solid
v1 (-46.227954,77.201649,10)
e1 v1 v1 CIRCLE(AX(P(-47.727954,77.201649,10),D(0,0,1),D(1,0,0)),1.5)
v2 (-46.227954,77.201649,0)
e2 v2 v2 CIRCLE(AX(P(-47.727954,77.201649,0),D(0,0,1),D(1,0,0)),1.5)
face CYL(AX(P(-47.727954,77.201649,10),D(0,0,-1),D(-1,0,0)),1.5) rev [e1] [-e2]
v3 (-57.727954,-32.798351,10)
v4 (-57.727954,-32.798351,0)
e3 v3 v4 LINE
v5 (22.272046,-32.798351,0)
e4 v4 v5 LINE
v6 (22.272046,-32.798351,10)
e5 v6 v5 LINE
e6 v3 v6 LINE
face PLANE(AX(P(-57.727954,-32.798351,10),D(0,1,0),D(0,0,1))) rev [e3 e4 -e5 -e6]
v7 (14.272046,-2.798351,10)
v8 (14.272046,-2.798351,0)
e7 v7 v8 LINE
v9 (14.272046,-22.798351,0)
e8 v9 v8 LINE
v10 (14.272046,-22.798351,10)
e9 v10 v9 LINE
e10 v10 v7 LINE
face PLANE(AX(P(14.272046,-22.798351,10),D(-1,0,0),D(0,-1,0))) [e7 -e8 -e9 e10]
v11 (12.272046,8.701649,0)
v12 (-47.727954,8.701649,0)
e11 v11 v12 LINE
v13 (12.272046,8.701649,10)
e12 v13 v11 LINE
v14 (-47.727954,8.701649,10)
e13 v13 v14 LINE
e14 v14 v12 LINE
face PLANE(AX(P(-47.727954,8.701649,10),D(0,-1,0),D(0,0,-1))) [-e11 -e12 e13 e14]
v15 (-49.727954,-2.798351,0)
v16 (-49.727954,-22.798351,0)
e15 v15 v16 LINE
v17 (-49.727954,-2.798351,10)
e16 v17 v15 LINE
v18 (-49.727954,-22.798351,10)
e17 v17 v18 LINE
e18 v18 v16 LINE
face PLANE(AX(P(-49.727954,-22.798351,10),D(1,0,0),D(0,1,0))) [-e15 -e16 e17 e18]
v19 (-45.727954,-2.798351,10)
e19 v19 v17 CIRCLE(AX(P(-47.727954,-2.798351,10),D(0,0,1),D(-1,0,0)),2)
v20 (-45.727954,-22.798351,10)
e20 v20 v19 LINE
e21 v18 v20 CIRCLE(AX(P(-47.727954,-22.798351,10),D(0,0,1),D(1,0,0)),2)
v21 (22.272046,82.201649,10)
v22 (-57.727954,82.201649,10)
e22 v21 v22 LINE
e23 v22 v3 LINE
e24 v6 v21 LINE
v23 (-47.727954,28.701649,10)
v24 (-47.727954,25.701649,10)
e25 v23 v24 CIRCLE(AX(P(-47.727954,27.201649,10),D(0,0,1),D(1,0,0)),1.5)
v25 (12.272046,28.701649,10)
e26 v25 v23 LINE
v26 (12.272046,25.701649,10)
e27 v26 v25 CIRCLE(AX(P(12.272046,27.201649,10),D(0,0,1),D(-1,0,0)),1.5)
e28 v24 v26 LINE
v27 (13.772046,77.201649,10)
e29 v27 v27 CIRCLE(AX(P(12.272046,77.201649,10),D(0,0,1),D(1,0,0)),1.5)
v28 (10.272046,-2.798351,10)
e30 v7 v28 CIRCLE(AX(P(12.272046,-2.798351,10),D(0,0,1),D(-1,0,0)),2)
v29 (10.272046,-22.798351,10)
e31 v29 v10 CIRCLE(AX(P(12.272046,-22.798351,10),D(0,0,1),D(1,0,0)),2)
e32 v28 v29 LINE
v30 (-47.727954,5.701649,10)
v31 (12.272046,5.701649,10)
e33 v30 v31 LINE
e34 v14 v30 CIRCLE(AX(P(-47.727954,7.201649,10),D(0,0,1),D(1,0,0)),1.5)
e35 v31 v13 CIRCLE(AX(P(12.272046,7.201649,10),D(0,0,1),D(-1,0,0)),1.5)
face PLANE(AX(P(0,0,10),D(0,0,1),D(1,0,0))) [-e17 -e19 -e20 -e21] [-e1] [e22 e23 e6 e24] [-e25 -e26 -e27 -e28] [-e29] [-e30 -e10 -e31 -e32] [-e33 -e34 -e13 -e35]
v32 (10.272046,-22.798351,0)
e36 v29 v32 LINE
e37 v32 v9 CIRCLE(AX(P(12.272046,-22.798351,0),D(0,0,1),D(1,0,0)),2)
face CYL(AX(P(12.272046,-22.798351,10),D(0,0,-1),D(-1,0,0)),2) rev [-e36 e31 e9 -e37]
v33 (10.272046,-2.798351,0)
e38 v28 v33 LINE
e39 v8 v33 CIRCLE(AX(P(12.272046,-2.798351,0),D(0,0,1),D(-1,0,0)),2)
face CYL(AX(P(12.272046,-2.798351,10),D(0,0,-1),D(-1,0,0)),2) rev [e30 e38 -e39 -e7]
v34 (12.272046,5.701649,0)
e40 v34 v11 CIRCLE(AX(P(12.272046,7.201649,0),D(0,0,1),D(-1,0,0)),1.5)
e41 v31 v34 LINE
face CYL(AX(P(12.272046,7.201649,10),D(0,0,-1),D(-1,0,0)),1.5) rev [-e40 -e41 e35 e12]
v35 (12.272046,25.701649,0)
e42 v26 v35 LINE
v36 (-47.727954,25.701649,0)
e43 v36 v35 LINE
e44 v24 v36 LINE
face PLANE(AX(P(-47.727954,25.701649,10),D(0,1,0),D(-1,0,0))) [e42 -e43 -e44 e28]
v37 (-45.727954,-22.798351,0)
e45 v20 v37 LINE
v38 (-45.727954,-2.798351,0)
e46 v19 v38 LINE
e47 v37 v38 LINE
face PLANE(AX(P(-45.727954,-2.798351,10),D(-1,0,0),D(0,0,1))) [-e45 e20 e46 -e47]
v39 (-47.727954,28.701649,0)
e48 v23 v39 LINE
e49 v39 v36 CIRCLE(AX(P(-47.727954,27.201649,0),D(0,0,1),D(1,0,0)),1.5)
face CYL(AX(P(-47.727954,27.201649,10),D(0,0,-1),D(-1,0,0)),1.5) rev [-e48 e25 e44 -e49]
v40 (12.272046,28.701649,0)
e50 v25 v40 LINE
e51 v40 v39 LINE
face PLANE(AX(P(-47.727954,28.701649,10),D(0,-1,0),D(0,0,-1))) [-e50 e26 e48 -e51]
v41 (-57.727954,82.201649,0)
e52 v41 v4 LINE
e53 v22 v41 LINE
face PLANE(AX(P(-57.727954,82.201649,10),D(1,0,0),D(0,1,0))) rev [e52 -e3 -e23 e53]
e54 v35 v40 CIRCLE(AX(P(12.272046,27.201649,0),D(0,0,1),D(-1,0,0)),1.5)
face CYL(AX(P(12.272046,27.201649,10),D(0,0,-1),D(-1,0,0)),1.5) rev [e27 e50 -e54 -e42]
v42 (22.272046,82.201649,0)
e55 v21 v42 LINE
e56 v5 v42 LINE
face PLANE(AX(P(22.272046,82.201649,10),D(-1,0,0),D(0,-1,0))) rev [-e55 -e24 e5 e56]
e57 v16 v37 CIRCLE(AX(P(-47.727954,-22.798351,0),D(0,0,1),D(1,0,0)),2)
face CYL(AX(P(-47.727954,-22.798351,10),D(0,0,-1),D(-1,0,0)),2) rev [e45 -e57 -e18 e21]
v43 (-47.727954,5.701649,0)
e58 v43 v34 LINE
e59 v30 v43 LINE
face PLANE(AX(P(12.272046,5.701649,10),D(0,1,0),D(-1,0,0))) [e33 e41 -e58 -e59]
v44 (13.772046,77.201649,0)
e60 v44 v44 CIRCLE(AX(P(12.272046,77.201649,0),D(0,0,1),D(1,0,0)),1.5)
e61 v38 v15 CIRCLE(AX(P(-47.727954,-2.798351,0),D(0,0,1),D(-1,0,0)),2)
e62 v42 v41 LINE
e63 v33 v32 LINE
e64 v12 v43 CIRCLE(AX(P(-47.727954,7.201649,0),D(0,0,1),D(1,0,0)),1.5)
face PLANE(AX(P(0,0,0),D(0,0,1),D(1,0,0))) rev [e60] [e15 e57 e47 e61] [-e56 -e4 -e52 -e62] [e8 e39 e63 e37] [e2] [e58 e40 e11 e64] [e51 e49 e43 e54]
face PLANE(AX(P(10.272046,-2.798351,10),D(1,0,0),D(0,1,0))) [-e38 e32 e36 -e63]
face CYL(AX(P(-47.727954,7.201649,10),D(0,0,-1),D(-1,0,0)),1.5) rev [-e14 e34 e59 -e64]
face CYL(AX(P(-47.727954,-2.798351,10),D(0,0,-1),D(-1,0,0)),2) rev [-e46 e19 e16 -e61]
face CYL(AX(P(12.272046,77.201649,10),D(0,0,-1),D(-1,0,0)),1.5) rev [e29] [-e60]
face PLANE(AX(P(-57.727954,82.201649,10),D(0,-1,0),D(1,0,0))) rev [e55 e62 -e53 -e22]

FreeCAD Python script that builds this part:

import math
import FreeCAD as App
import Part
import Sketcher

V = App.Vector


def add_polygon(sketch, points):
    """Adds a closed chain of lines whose ends are joined by coincident constraints."""
    first, n = sketch.GeometryCount, len(points)
    for a, b in zip(points, points[1:] + points[:1]):
        sketch.addGeometry(Part.LineSegment(App.Vector(*a, 0), App.Vector(*b, 0)), False)
    for i in range(n):
        sketch.addConstraint(Sketcher.Constraint("Coincident", first + i, 2, first + (i + 1) % n, 1))

doc = App.newDocument("Part")
params = doc.addObject("Spreadsheet::Sheet", "Params")
for row, (alias, value) in enumerate([
    ("sketch1_diameter", "3 mm"),
    ("sketch1_radius", "2 mm"),
    ("sketch1_width", "80 mm"),
    ("sketch1_width2", "60 mm"),
    ("sketch1_height", "115 mm"),
    ("pad1_length", "10 mm"),
], start=1):
    params.set(f"A{row}", alias)
    params.set(f"B{row}", "=" + value)
    params.setAlias(f"B{row}", alias)

body = doc.addObject("PartDesign::Body", "Body")

# Sketch on XY plane
sketch1 = doc.addObject("Sketcher::SketchObject", "Sketch")
body.addObject(sketch1)
sketch1.AttachmentSupport = (doc.XY_Plane, [""])
sketch1.MapMode = "FlatFace"
add_polygon(sketch1, [(-57.7, 82.2), (-57.7, -32.8), (22.3, -32.8), (22.3, 82.2)])  # lines 0-3
sketch1.addGeometry(Part.ArcOfCircle(Part.Circle(V(-47.7, -22.8, 0), V(0, 0, 1), 2), math.radians(180), math.radians(360)), False)  # 4
sketch1.addGeometry(Part.LineSegment(V(-49.7, -22.8, 0), V(-49.7, -2.8, 0)), False)  # 5
sketch1.addGeometry(Part.ArcOfCircle(Part.Circle(V(-47.7, -2.8, 0), V(0, 0, 1), 2), math.radians(0), math.radians(180)), False)  # 6
sketch1.addGeometry(Part.LineSegment(V(-45.7, -2.8, 0), V(-45.7, -22.8, 0)), False)  # 7
sketch1.addGeometry(Part.LineSegment(V(10.3, -22.8, 0), V(10.3, -2.8, 0)), False)  # 8
sketch1.addGeometry(Part.ArcOfCircle(Part.Circle(V(12.3, -2.8, 0), V(0, 0, 1), 2), math.radians(0), math.radians(180)), False)  # 9
sketch1.addGeometry(Part.LineSegment(V(14.3, -2.8, 0), V(14.3, -22.8, 0)), False)  # 10
sketch1.addGeometry(Part.ArcOfCircle(Part.Circle(V(12.3, -22.8, 0), V(0, 0, 1), 2), math.radians(180), math.radians(360)), False)  # 11
sketch1.addGeometry(Part.ArcOfCircle(Part.Circle(V(-47.7, 7.2, 0), V(0, 0, 1), 1.5), math.radians(90), math.radians(270)), False)  # 12
sketch1.addGeometry(Part.LineSegment(V(-47.7, 8.7, 0), V(12.3, 8.7, 0)), False)  # 13
sketch1.addGeometry(Part.ArcOfCircle(Part.Circle(V(12.3, 7.2, 0), V(0, 0, 1), 1.5), math.radians(-90), math.radians(90)), False)  # 14
sketch1.addGeometry(Part.LineSegment(V(12.3, 5.7, 0), V(-47.7, 5.7, 0)), False)  # 15
sketch1.addGeometry(Part.Circle(V(-47.7, 77.2, 0), V(0, 0, 1), 1.5), False)  # 16
sketch1.addGeometry(Part.ArcOfCircle(Part.Circle(V(-47.7, 27.2, 0), V(0, 0, 1), 1.5), math.radians(90), math.radians(270)), False)  # 17
sketch1.addGeometry(Part.LineSegment(V(-47.7, 28.7, 0), V(12.3, 28.7, 0)), False)  # 18
sketch1.addGeometry(Part.ArcOfCircle(Part.Circle(V(12.3, 27.2, 0), V(0, 0, 1), 1.5), math.radians(-90), math.radians(90)), False)  # 19
sketch1.addGeometry(Part.LineSegment(V(12.3, 25.7, 0), V(-47.7, 25.7, 0)), False)  # 20
sketch1.addGeometry(Part.Circle(V(12.3, 77.2, 0), V(0, 0, 1), 1.5), False)  # 21
sketch1.addConstraint([
    Sketcher.Constraint("Tangent", 4, 1, 5, 1),
    Sketcher.Constraint("Tangent", 5, 2, 6, 2),
    Sketcher.Constraint("Tangent", 6, 1, 7, 1),
    Sketcher.Constraint("Tangent", 7, 2, 4, 2),
    Sketcher.Constraint("Tangent", 8, 2, 9, 2),
    Sketcher.Constraint("Tangent", 9, 1, 10, 1),
    Sketcher.Constraint("Tangent", 10, 2, 11, 2),
    Sketcher.Constraint("Tangent", 11, 1, 8, 1),
    Sketcher.Constraint("Tangent", 12, 1, 13, 1),
    Sketcher.Constraint("Tangent", 13, 2, 14, 2),
    Sketcher.Constraint("Tangent", 14, 1, 15, 1),
    Sketcher.Constraint("Tangent", 15, 2, 12, 2),
    Sketcher.Constraint("Tangent", 17, 1, 18, 1),
    Sketcher.Constraint("Tangent", 18, 2, 19, 2),
    Sketcher.Constraint("Tangent", 19, 1, 20, 1),
    Sketcher.Constraint("Tangent", 20, 2, 17, 2),
    Sketcher.Constraint("Vertical", 0),
    Sketcher.Constraint("Horizontal", 1),
    Sketcher.Constraint("Vertical", 2),
    Sketcher.Constraint("Horizontal", 3),
    Sketcher.Constraint("Vertical", 5),
    Sketcher.Constraint("Vertical", 7),
    Sketcher.Constraint("Vertical", 8),
    Sketcher.Constraint("Vertical", 10),
    Sketcher.Constraint("Horizontal", 13),
    Sketcher.Constraint("Horizontal", 15),
    Sketcher.Constraint("Horizontal", 18),
    Sketcher.Constraint("Horizontal", 20),
    Sketcher.Constraint("Equal", 6, 9),
    Sketcher.Constraint("Equal", 14, 16),
    Sketcher.Constraint("Equal", 16, 17),
    Sketcher.Constraint("Equal", 19, 21),
    Sketcher.Constraint("Horizontal", 6, 3, 9, 3),
    Sketcher.Constraint("Horizontal", 4, 3, 11, 3),
    Sketcher.Constraint("Horizontal", 16, 3, 21, 3),
    Sketcher.Constraint("Vertical", 6, 3, 12, 3),
    Sketcher.Constraint("Vertical", 11, 3, 14, 3),
    Sketcher.Constraint("Vertical", 12, 3, 16, 3),
    Sketcher.Constraint("Vertical", 16, 3, 17, 3),
    Sketcher.Constraint("Vertical", 14, 3, 19, 3),
    Sketcher.Constraint("Vertical", 19, 3, 21, 3),
    Sketcher.Constraint("Diameter", 16, 3.0),
    Sketcher.Constraint("Radius", 4, 2.0),
    Sketcher.Constraint("DistanceX", 1, 1, 1, 2, 80.0),
    Sketcher.Constraint("DistanceX", 13, 1, 13, 2, 60.0),
    Sketcher.Constraint("DistanceY", 0, 2, 0, 1, 115.0),
    Sketcher.Constraint("DistanceY", 5, 1, 5, 2, 20.0),
    Sketcher.Constraint("DistanceY", 6, 3, 12, 3, 10.0),
    Sketcher.Constraint("DistanceY", 12, 3, 16, 3, 70.0),
    Sketcher.Constraint("DistanceY", 12, 3, 17, 3, 20.0),
    Sketcher.Constraint("DistanceX", 0, 2, 4, 3, 10.0),
    Sketcher.Constraint("DistanceY", 0, 2, 4, 3, 10.0),
    Sketcher.Constraint("DistanceY", 4, 3, -1, 1, 22.798351),
    Sketcher.Constraint("DistanceX", 4, 3, -1, 1, 47.727954),
])
sketch1.setExpression("Constraints[45]", "Params.sketch1_diameter")
sketch1.setExpression("Constraints[46]", "Params.sketch1_radius")
sketch1.setExpression("Constraints[47]", "Params.sketch1_width")
sketch1.setExpression("Constraints[48]", "Params.sketch1_width2")
sketch1.setExpression("Constraints[49]", "Params.sketch1_height")
pad1 = doc.addObject("PartDesign::Pad", "Pad")
body.addObject(pad1)
pad1.Profile = sketch1
pad1.setExpression("Length", "Params.pad1_length")

doc.recompute()
